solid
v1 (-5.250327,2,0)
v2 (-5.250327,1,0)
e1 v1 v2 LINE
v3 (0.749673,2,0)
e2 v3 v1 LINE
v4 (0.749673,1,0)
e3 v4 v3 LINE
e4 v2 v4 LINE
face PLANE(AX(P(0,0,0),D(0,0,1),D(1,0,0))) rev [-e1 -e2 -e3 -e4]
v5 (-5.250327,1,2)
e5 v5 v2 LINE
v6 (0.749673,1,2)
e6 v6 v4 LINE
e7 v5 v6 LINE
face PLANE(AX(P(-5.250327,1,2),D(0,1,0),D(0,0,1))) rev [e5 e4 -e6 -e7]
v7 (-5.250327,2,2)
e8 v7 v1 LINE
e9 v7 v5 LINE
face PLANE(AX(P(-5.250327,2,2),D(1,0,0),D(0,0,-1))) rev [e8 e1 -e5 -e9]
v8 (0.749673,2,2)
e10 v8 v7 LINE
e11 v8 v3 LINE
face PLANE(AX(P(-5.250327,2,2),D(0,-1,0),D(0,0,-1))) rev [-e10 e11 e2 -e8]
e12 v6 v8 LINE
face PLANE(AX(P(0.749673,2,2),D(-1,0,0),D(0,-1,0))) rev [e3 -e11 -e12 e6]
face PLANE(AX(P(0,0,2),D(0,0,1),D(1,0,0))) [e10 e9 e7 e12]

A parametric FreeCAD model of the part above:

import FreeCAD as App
import Part
import Sketcher

V = App.Vector


def add_polygon(sketch, points):
    """Adds a closed chain of lines whose ends are joined by coincident constraints."""
    first, n = sketch.GeometryCount, len(points)
    for a, b in zip(points, points[1:] + points[:1]):
        sketch.addGeometry(Part.LineSegment(App.Vector(*a, 0), App.Vector(*b, 0)), False)
    for i in range(n):
        sketch.addConstraint(Sketcher.Constraint("Coincident", first + i, 2, first + (i + 1) % n, 1))

doc = App.newDocument("Part")
body = doc.addObject("PartDesign::Body", "Body")

# Sketch on XY plane
sketch1 = doc.addObject("Sketcher::SketchObject", "Sketch")
body.addObject(sketch1)
sketch1.AttachmentSupport = (doc.XY_Plane, [""])
sketch1.MapMode = "FlatFace"
add_polygon(sketch1, [(-5.3, 2), (-5.3, 1), (0.7, 1), (0.7, 2)])  # lines 0-3
sketch1.addConstraint([
    Sketcher.Constraint("Vertical", 0),
    Sketcher.Constraint("Horizontal", 1),
    Sketcher.Constraint("Vertical", 2),
    Sketcher.Constraint("Horizontal", 3),
    Sketcher.Constraint("DistanceX", 1, 1, 1, 2, 6.0),
    Sketcher.Constraint("DistanceY", 0, 2, 0, 1, 1.0),
    Sketcher.Constraint("DistanceY", -1, 1, 0, 2, 1.0),
    Sketcher.Constraint("DistanceX", 0, 2, -1, 1, 5.250327),
])
pad1 = doc.addObject("PartDesign::Pad", "Pad")
body.addObject(pad1)
pad1.Profile = sketch1
pad1.Length = 2

doc.recompute()
